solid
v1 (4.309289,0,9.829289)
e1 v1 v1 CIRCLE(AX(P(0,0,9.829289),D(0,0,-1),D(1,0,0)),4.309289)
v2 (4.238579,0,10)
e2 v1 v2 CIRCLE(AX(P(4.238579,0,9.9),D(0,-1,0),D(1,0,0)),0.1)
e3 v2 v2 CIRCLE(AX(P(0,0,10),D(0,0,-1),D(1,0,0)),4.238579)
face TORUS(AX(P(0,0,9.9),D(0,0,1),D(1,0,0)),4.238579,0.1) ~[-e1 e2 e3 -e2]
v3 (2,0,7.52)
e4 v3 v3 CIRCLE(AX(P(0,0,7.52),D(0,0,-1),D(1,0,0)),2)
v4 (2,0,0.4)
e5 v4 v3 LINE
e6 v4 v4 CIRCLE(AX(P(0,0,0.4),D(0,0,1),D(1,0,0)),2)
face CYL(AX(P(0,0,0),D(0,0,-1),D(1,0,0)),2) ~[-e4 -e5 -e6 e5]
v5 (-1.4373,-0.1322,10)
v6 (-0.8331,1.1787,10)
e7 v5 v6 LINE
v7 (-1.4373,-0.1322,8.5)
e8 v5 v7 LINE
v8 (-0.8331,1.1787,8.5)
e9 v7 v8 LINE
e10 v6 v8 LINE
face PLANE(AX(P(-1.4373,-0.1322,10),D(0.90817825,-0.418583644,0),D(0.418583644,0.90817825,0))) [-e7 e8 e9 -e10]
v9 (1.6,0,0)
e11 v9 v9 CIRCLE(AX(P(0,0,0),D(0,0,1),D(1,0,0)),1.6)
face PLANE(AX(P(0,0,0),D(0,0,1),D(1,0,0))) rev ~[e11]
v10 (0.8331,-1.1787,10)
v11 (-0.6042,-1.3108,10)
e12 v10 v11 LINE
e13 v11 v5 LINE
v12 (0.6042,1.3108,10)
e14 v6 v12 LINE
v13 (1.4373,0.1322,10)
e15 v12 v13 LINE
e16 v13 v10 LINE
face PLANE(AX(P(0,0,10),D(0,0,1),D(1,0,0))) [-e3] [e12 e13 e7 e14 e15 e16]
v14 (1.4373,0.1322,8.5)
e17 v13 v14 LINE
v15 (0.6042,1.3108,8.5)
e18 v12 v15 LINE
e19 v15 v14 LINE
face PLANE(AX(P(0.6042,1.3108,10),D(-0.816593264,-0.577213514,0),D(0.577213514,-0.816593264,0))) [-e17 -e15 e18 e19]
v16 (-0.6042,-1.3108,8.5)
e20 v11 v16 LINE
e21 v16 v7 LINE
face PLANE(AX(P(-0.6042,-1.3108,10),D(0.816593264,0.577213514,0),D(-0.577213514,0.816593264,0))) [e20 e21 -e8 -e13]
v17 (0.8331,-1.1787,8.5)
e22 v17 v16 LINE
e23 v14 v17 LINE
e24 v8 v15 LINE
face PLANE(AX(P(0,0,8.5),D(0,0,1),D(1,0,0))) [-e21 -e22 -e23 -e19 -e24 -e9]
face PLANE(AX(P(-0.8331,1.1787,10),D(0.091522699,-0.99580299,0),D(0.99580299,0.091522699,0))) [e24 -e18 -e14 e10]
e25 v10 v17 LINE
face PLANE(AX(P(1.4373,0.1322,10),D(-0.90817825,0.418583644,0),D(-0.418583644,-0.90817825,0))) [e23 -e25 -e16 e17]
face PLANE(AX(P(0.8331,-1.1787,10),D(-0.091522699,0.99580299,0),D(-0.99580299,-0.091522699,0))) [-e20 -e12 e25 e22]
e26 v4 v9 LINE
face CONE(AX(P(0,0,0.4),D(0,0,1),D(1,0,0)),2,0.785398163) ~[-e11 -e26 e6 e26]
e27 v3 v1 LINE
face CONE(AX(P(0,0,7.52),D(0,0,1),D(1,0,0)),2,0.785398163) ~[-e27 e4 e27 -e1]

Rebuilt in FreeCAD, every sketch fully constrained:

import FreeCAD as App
import Part
import Sketcher
from FreeCAD import Vector
Q = App.Units.Quantity


def edges_at(feature, points):
    """Names of the edges that pass closest to the given points."""
    edges = feature.Shape.Edges
    near = lambda p: min(range(len(edges)), key=lambda i: edges[i].distToShape(Part.Vertex(*p))[0])
    return sorted({f"Edge{near(p) + 1}" for p in points})


def add_polygon(sketch, points):
    """Adds a closed chain of lines whose ends are joined by coincident constraints."""
    first, n = sketch.GeometryCount, len(points)
    for a, b in zip(points, points[1:] + points[:1]):
        sketch.addGeometry(Part.LineSegment(App.Vector(*a, 0), App.Vector(*b, 0)), False)
    for i in range(n):
        sketch.addConstraint(Sketcher.Constraint("Coincident", first + i, 2, first + (i + 1) % n, 1))

doc = App.newDocument("Part")
body = doc.addObject("PartDesign::Body", "Body")

sketch1 = body.newObject("Sketcher::SketchObject", "Sketch")
sketch1.AttachmentSupport = (doc.getObject("XY_Plane"), [""])
sketch1.MapMode = "FlatFace"
sketch1.addGeometry(Part.Circle(Vector(0, 0, 0), Vector(0, 0, 1), 2), False)
sketch1.addConstraint(Sketcher.Constraint("Coincident", 0, 3, -1, 1))
sketch1.addConstraint(Sketcher.Constraint("Diameter", 0, Q("4 mm")))
pad1 = body.newObject("PartDesign::Pad", "Pad")
pad1.Profile = sketch1
pad1.Length = 7.52

sketch2 = body.newObject("Sketcher::SketchObject", "Sketch001")
sketch2.AttachmentSupport = (doc.getObject("XY_Plane"), [""])
sketch2.MapMode = "FlatFace"
sketch2.AttachmentOffset = App.Placement(Vector(0, 0, 7.52), App.Rotation())
sketch2.addGeometry(Part.Circle(Vector(0, 0, 0), Vector(0, 0, 1), 2), False)
sketch2.addConstraint(Sketcher.Constraint("Coincident", 0, 3, -1, 1))
sketch2.addConstraint(Sketcher.Constraint("Diameter", 0, Q("4 mm")))
pad2 = body.newObject("PartDesign::Pad", "Pad001")
pad2.Profile = sketch2
pad2.Length = 2.48
pad2.TaperAngle = 45

sketch3 = body.newObject("Sketcher::SketchObject", "Sketch002")
sketch3.AttachmentSupport = (doc.getObject("XY_Plane"), [""])
sketch3.MapMode = "FlatFace"
sketch3.AttachmentOffset = App.Placement(Vector(0, 0, 10), App.Rotation())
add_polygon(sketch3, [(1.4373, 0.1322), (0.6042, 1.3108), (-0.8331, 1.1787), (-1.4373, -0.1322), (-0.6042, -1.3108), (0.8331, -1.1787)])
sketch3.addConstraint(Sketcher.Constraint("Symmetric", 0, 2, 3, 2, -1, 1))
sketch3.addConstraint(Sketcher.Constraint("Symmetric", 1, 2, 4, 2, -1, 1))
sketch3.addConstraint(Sketcher.Constraint("Symmetric", 2, 2, 5, 2, -1, 1))
sketch3.addConstraint(Sketcher.Constraint("Equal", 0, 1))
sketch3.addConstraint(Sketcher.Constraint("Equal", 1, 2))
sketch3.addConstraint(Sketcher.Constraint("DistanceX", 1, 2, -1, 1, Q("0.833 mm")))
sketch3.addConstraint(Sketcher.Constraint("DistanceY", 1, 2, 0, 2, Q("0.132 mm")))
sketch3.addConstraint(Sketcher.Constraint("DistanceY", 2, 2, 1, 2, Q("1.311 mm")))
sketch3.addConstraint(Sketcher.Constraint("DistanceX", 2, 2, 3, 2, Q("0.833 mm")))
pocket1 = body.newObject("PartDesign::Pocket", "Pocket")
pocket1.Profile = sketch3
pocket1.Length = 1.5
doc.recompute()

chamfer = body.newObject("PartDesign::Chamfer", "Chamfer")
chamfer.Base = (pocket1, edges_at(pocket1, [(-2, 0, 0)]))
chamfer.Size = 0.4
doc.recompute()

fillet = body.newObject("PartDesign::Fillet", "Fillet")
fillet.Base = (chamfer, edges_at(chamfer, [(-4.48, 0, 10)]))
fillet.Radius = 0.1

doc.recompute()
